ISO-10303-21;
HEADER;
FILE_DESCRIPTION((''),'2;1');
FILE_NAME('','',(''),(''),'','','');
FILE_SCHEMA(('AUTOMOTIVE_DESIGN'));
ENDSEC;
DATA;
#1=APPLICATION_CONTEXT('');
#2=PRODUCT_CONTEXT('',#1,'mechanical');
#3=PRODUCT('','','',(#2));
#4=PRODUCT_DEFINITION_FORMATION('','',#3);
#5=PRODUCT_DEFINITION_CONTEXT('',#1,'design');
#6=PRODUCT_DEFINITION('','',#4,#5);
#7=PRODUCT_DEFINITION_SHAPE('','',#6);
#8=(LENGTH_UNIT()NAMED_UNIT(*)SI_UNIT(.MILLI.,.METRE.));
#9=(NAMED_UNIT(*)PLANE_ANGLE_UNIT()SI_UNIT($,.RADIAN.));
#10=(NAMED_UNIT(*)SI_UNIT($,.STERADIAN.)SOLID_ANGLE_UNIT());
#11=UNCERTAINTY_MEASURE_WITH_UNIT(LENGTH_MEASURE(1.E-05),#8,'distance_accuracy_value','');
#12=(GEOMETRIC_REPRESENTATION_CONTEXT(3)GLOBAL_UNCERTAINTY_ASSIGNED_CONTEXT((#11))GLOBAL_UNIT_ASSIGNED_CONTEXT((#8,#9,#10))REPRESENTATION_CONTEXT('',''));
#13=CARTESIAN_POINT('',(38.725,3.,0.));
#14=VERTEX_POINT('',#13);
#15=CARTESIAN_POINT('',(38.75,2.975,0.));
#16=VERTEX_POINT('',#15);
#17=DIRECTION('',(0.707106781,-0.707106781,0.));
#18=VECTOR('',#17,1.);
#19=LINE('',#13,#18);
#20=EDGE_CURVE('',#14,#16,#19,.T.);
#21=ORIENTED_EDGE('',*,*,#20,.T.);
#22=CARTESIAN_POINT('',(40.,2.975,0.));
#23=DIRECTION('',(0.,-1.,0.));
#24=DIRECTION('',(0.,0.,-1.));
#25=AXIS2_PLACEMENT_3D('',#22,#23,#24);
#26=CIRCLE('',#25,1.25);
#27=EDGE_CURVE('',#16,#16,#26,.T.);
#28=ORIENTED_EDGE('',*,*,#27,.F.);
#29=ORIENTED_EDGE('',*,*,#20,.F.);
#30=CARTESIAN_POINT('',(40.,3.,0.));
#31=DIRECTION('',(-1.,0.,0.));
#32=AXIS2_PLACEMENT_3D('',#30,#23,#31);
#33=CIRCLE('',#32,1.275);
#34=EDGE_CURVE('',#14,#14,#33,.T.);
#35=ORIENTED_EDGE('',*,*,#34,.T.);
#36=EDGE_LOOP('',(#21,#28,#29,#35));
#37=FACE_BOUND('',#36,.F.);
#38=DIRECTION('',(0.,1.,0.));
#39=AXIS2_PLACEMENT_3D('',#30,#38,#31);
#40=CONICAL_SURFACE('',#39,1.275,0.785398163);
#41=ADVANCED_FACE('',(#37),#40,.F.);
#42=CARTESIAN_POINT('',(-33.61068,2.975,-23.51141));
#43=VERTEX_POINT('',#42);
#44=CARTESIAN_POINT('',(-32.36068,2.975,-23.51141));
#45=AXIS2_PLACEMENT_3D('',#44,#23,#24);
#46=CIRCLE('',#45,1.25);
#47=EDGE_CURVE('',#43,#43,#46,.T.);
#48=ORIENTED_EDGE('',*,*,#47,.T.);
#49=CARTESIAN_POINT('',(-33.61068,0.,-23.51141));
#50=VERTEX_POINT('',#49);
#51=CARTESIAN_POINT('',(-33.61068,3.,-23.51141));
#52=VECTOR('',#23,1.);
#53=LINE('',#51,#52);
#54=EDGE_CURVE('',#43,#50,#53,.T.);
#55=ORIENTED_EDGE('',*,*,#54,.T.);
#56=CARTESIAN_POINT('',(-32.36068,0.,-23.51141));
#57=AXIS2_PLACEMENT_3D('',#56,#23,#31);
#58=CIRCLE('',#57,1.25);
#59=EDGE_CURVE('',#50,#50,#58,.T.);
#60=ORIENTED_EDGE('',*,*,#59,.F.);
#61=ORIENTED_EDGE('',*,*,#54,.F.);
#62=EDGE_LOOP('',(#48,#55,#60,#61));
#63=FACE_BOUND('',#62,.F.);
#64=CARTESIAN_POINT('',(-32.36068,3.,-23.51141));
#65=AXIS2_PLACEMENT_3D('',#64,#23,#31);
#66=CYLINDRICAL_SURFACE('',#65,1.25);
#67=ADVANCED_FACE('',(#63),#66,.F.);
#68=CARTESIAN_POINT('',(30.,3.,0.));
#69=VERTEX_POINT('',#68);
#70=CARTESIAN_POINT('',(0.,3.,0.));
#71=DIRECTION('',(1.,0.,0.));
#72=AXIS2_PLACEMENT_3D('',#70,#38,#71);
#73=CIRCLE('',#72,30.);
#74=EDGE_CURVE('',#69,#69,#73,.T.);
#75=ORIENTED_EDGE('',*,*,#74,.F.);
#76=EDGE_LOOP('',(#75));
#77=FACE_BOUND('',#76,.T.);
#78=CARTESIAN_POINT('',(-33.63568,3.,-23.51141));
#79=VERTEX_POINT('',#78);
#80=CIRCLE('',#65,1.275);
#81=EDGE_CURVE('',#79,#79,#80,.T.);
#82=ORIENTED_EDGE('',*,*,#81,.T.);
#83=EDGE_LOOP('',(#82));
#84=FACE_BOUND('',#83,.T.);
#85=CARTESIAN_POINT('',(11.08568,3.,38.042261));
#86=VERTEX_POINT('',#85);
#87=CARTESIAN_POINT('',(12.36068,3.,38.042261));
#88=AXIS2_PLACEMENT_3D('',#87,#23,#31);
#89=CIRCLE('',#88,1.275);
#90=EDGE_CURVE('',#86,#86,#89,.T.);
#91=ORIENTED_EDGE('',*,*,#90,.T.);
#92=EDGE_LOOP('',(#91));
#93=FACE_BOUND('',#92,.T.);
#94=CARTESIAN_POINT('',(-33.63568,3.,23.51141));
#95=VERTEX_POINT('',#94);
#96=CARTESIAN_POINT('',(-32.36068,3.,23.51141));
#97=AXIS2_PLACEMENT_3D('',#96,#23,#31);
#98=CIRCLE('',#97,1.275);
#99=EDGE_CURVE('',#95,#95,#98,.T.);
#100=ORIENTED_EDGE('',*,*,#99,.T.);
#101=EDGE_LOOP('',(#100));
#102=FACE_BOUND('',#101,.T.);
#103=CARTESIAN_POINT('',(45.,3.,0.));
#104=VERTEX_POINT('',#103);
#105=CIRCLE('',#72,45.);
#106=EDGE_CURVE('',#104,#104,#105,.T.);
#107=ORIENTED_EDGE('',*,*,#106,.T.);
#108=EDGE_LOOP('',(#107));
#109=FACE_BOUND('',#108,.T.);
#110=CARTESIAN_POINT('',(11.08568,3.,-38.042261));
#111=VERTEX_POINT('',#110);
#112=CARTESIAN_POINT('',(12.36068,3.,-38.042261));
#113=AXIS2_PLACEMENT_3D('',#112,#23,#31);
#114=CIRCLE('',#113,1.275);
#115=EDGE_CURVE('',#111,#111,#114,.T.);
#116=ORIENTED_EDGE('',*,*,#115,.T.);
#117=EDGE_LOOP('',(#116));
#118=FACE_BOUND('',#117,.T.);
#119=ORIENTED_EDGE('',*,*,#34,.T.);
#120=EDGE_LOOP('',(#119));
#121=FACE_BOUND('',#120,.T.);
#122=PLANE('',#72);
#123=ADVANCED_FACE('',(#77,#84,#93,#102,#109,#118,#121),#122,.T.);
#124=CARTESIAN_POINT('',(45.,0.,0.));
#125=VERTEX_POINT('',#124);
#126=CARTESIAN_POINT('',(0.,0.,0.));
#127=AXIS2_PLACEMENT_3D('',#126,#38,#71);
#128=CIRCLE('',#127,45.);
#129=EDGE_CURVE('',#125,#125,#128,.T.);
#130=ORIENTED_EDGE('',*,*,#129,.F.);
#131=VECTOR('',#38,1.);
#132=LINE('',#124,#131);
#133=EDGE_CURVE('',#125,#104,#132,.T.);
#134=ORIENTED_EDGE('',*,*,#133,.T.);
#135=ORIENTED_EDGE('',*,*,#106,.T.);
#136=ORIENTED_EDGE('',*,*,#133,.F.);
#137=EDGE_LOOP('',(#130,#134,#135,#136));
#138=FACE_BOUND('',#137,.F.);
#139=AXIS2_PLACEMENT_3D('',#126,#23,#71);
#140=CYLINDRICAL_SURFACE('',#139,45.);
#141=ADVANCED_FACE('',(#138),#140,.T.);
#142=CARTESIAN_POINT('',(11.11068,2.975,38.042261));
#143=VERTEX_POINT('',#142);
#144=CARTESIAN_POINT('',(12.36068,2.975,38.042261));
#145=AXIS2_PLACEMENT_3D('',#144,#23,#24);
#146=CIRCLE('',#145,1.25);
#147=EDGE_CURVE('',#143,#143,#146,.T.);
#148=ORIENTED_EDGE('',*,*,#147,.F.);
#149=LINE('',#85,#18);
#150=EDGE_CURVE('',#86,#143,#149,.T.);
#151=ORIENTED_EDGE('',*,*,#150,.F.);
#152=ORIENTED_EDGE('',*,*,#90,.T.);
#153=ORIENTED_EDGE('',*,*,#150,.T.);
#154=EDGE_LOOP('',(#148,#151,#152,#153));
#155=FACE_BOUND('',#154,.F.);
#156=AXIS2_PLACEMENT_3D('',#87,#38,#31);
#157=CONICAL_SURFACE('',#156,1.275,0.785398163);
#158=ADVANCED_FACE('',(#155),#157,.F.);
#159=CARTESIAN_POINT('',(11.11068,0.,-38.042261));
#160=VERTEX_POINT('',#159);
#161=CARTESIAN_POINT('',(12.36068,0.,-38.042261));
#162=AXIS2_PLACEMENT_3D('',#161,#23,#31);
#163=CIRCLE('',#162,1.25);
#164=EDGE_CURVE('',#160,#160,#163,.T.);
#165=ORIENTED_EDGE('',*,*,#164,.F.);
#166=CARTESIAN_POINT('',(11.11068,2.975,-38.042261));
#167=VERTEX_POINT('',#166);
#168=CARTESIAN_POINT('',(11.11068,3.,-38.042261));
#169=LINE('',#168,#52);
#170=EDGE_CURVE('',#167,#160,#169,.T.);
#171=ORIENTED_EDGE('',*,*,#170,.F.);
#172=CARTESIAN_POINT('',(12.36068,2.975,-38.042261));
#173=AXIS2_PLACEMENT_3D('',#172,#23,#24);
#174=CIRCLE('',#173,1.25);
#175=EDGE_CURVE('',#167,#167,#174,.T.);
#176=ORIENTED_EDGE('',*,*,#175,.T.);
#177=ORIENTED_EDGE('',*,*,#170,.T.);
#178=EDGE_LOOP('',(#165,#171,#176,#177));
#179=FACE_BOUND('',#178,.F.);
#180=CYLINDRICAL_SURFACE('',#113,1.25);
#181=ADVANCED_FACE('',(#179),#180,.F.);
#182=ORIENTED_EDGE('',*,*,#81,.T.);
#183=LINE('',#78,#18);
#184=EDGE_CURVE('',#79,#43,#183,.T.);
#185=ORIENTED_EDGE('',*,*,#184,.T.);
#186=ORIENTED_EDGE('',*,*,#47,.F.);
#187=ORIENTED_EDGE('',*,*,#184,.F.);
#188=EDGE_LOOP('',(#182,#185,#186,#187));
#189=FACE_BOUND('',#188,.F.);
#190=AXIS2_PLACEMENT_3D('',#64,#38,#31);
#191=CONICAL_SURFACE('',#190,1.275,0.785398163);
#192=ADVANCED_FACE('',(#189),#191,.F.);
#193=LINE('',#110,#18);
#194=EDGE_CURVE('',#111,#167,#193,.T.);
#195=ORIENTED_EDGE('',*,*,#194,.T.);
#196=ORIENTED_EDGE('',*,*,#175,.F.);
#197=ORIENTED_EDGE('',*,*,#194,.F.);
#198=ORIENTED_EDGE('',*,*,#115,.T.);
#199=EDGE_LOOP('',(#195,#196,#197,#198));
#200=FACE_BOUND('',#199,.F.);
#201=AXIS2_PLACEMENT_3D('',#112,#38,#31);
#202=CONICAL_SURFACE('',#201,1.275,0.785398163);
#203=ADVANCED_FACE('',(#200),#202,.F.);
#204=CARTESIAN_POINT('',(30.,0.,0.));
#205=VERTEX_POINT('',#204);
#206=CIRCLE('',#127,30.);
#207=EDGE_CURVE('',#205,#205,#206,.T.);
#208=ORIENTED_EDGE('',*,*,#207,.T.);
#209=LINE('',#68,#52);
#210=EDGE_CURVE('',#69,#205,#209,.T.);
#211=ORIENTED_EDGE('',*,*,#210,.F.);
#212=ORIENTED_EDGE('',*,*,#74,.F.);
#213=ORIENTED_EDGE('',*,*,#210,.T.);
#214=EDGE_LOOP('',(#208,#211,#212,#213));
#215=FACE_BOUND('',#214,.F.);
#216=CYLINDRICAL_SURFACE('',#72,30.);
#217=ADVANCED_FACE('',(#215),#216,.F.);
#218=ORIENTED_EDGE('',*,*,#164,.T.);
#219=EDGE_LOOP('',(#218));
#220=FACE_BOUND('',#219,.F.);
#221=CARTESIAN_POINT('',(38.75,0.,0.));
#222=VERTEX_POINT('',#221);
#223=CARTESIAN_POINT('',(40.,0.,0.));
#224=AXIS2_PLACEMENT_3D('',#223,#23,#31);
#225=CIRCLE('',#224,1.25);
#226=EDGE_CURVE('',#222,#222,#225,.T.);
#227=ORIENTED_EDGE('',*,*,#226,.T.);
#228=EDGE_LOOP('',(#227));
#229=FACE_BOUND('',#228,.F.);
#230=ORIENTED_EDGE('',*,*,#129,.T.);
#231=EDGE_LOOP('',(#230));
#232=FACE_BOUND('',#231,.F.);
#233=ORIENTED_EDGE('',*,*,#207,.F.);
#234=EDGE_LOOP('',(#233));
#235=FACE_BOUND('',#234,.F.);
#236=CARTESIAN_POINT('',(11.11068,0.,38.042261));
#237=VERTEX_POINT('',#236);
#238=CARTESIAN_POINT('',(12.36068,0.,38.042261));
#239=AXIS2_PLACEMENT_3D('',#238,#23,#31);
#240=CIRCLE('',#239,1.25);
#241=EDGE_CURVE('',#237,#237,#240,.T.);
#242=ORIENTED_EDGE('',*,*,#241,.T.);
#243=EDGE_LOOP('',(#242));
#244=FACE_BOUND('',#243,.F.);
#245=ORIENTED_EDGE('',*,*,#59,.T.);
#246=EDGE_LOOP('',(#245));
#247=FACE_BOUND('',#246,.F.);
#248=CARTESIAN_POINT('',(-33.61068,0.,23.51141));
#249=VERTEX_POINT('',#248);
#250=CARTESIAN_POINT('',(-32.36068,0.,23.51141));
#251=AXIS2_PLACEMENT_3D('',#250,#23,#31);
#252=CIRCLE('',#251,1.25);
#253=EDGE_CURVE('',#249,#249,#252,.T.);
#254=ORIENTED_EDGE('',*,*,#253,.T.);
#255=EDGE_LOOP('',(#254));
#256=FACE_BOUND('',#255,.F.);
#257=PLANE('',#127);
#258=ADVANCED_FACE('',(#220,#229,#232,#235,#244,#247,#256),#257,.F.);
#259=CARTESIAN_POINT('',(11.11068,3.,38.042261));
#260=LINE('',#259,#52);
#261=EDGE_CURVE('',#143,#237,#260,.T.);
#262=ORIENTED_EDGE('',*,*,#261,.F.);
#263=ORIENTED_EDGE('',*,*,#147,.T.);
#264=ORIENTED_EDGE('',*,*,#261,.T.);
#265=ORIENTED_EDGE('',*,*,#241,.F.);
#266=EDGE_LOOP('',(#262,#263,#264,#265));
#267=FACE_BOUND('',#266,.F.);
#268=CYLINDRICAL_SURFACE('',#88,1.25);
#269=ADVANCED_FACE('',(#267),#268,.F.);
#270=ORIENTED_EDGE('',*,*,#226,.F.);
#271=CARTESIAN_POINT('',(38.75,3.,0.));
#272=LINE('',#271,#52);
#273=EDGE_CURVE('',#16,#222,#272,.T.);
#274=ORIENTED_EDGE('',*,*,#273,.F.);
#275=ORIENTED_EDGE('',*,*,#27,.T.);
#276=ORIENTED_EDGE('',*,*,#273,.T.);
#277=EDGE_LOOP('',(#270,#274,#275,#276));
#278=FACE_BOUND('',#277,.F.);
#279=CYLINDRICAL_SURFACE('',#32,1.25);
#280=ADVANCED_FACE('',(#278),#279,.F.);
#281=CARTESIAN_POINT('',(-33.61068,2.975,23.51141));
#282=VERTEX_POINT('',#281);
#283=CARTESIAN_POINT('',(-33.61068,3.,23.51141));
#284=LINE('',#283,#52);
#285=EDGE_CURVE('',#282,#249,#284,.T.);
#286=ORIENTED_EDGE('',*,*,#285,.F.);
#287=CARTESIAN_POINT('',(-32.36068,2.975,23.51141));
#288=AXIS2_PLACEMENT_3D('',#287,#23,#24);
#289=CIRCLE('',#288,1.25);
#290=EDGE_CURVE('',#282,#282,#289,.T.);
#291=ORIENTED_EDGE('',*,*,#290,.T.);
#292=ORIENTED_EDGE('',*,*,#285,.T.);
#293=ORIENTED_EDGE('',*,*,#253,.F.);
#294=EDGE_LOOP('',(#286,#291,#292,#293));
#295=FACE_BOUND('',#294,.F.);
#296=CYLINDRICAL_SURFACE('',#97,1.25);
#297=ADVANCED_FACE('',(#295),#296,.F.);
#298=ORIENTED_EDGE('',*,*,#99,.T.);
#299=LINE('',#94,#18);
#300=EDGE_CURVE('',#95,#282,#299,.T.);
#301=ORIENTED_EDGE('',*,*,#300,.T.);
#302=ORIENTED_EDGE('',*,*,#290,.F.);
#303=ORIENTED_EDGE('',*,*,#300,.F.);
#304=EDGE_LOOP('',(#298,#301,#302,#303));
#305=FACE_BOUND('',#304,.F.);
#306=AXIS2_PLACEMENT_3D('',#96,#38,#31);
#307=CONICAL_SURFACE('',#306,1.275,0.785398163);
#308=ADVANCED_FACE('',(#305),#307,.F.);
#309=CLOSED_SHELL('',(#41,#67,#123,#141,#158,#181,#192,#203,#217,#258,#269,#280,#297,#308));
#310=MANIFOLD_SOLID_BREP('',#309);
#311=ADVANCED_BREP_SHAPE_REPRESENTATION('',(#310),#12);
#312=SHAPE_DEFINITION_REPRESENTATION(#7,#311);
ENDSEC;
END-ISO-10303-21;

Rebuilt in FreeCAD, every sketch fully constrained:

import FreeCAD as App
import Part
import Sketcher
Q = App.Units.Quantity

doc = App.newDocument("Part")
body = doc.addObject("PartDesign::Body", "Body")

# Sketch on XZ plane
sketch1 = body.newObject("Sketcher::SketchObject", "Sketch")
sketch1.AttachmentSupport = (doc.getObject("XZ_Plane"), [""])
sketch1.MapMode = "FlatFace"
sketch1.addGeometry(Part.Circle(App.Vector(0, 0, 0), App.Vector(0, 0, 1), 45), False)
sketch1.addConstraint([
    Sketcher.Constraint("Coincident", 0, 3, -1, 1),
    Sketcher.Constraint("Diameter", 0, Q("90 mm")),
])
pad1 = body.newObject("PartDesign::Pad", "Pad")
pad1.Profile = sketch1
pad1.Length = 3
pad1.Reversed = True

# Sketch on XZ plane
sketch2 = body.newObject("Sketcher::SketchObject", "Sketch001")
sketch2.AttachmentSupport = (doc.getObject("XZ_Plane"), [""])
sketch2.MapMode = "FlatFace"
sketch2.AttachmentOffset = App.Placement(App.Vector(0, 0, -3), App.Rotation())
sketch2.addGeometry(Part.Circle(App.Vector(0, 0, 0), App.Vector(0, 0, 1), 30), False)
sketch2.addConstraint([
    Sketcher.Constraint("Coincident", 0, 3, -1, 1),
    Sketcher.Constraint("Diameter", 0, Q("60 mm")),
])
pocket1 = body.newObject("PartDesign::Pocket", "Pocket")
pocket1.Profile = sketch2
pocket1.Type = "ThroughAll"
pocket1.Midplane = True

# Sketch on XZ plane
sketch3 = body.newObject("Sketcher::SketchObject", "Sketch002")
sketch3.AttachmentSupport = (doc.getObject("XZ_Plane"), [""])
sketch3.MapMode = "FlatFace"
sketch3.AttachmentOffset = App.Placement(App.Vector(0, 0, -3), App.Rotation())
sketch3.addGeometry([
    Part.Circle(App.Vector(0, 0, 0), App.Vector(0, 0, 1), 1.2),  # 0
    Part.Circle(App.Vector(40, 0, 0), App.Vector(0, 0, 1), 1.2),  # 1
    Part.Circle(App.Vector(12.4, 38, 0), App.Vector(0, 0, 1), 1.2),  # 2
    Part.Circle(App.Vector(-32.4, 23.5, 0), App.Vector(0, 0, 1), 1.2),  # 3
    Part.Circle(App.Vector(-32.4, -23.5, 0), App.Vector(0, 0, 1), 1.2),  # 4
    Part.Circle(App.Vector(12.4, -38, 0), App.Vector(0, 0, 1), 1.2),  # 5
], False)
sketch3.addConstraint([
    Sketcher.Constraint("Coincident", 0, 3, -1, 1),
    Sketcher.Constraint("Equal", 0, 1),
    Sketcher.Constraint("Equal", 1, 2),
    Sketcher.Constraint("Equal", 2, 3),
    Sketcher.Constraint("Equal", 3, 4),
    Sketcher.Constraint("Equal", 4, 5),
    Sketcher.Constraint("Symmetric", 3, 3, 4, 3, -1),
    Sketcher.Constraint("Symmetric", 2, 3, 5, 3, -1),
    Sketcher.Constraint("PointOnObject", 1, 3, -1),
    Sketcher.Constraint("Diameter", 0, Q("2.5 mm")),
    Sketcher.Constraint("DistanceX", -1, 1, 1, 3, Q("40 mm")),
    Sketcher.Constraint("DistanceX", -1, 1, 2, 3, Q("12.36068 mm")),
    Sketcher.Constraint("DistanceY", -1, 1, 2, 3, Q("38.042261 mm")),
    Sketcher.Constraint("DistanceX", 3, 3, -1, 1, Q("32.36068 mm")),
    Sketcher.Constraint("DistanceY", -1, 1, 3, 3, Q("23.51141 mm")),
])
doc.recompute()
hole = body.newObject("PartDesign::Hole", "Hole")
hole.Profile = sketch3
hole.ThreadType = "None"
hole.Diameter = 2.5
hole.DepthType = "ThroughAll"
hole.HoleCutType = "Countersink"
hole.HoleCutDiameter = 2.55
hole.HoleCutCountersinkAngle = 90
hole.Reversed = True

doc.recompute()
